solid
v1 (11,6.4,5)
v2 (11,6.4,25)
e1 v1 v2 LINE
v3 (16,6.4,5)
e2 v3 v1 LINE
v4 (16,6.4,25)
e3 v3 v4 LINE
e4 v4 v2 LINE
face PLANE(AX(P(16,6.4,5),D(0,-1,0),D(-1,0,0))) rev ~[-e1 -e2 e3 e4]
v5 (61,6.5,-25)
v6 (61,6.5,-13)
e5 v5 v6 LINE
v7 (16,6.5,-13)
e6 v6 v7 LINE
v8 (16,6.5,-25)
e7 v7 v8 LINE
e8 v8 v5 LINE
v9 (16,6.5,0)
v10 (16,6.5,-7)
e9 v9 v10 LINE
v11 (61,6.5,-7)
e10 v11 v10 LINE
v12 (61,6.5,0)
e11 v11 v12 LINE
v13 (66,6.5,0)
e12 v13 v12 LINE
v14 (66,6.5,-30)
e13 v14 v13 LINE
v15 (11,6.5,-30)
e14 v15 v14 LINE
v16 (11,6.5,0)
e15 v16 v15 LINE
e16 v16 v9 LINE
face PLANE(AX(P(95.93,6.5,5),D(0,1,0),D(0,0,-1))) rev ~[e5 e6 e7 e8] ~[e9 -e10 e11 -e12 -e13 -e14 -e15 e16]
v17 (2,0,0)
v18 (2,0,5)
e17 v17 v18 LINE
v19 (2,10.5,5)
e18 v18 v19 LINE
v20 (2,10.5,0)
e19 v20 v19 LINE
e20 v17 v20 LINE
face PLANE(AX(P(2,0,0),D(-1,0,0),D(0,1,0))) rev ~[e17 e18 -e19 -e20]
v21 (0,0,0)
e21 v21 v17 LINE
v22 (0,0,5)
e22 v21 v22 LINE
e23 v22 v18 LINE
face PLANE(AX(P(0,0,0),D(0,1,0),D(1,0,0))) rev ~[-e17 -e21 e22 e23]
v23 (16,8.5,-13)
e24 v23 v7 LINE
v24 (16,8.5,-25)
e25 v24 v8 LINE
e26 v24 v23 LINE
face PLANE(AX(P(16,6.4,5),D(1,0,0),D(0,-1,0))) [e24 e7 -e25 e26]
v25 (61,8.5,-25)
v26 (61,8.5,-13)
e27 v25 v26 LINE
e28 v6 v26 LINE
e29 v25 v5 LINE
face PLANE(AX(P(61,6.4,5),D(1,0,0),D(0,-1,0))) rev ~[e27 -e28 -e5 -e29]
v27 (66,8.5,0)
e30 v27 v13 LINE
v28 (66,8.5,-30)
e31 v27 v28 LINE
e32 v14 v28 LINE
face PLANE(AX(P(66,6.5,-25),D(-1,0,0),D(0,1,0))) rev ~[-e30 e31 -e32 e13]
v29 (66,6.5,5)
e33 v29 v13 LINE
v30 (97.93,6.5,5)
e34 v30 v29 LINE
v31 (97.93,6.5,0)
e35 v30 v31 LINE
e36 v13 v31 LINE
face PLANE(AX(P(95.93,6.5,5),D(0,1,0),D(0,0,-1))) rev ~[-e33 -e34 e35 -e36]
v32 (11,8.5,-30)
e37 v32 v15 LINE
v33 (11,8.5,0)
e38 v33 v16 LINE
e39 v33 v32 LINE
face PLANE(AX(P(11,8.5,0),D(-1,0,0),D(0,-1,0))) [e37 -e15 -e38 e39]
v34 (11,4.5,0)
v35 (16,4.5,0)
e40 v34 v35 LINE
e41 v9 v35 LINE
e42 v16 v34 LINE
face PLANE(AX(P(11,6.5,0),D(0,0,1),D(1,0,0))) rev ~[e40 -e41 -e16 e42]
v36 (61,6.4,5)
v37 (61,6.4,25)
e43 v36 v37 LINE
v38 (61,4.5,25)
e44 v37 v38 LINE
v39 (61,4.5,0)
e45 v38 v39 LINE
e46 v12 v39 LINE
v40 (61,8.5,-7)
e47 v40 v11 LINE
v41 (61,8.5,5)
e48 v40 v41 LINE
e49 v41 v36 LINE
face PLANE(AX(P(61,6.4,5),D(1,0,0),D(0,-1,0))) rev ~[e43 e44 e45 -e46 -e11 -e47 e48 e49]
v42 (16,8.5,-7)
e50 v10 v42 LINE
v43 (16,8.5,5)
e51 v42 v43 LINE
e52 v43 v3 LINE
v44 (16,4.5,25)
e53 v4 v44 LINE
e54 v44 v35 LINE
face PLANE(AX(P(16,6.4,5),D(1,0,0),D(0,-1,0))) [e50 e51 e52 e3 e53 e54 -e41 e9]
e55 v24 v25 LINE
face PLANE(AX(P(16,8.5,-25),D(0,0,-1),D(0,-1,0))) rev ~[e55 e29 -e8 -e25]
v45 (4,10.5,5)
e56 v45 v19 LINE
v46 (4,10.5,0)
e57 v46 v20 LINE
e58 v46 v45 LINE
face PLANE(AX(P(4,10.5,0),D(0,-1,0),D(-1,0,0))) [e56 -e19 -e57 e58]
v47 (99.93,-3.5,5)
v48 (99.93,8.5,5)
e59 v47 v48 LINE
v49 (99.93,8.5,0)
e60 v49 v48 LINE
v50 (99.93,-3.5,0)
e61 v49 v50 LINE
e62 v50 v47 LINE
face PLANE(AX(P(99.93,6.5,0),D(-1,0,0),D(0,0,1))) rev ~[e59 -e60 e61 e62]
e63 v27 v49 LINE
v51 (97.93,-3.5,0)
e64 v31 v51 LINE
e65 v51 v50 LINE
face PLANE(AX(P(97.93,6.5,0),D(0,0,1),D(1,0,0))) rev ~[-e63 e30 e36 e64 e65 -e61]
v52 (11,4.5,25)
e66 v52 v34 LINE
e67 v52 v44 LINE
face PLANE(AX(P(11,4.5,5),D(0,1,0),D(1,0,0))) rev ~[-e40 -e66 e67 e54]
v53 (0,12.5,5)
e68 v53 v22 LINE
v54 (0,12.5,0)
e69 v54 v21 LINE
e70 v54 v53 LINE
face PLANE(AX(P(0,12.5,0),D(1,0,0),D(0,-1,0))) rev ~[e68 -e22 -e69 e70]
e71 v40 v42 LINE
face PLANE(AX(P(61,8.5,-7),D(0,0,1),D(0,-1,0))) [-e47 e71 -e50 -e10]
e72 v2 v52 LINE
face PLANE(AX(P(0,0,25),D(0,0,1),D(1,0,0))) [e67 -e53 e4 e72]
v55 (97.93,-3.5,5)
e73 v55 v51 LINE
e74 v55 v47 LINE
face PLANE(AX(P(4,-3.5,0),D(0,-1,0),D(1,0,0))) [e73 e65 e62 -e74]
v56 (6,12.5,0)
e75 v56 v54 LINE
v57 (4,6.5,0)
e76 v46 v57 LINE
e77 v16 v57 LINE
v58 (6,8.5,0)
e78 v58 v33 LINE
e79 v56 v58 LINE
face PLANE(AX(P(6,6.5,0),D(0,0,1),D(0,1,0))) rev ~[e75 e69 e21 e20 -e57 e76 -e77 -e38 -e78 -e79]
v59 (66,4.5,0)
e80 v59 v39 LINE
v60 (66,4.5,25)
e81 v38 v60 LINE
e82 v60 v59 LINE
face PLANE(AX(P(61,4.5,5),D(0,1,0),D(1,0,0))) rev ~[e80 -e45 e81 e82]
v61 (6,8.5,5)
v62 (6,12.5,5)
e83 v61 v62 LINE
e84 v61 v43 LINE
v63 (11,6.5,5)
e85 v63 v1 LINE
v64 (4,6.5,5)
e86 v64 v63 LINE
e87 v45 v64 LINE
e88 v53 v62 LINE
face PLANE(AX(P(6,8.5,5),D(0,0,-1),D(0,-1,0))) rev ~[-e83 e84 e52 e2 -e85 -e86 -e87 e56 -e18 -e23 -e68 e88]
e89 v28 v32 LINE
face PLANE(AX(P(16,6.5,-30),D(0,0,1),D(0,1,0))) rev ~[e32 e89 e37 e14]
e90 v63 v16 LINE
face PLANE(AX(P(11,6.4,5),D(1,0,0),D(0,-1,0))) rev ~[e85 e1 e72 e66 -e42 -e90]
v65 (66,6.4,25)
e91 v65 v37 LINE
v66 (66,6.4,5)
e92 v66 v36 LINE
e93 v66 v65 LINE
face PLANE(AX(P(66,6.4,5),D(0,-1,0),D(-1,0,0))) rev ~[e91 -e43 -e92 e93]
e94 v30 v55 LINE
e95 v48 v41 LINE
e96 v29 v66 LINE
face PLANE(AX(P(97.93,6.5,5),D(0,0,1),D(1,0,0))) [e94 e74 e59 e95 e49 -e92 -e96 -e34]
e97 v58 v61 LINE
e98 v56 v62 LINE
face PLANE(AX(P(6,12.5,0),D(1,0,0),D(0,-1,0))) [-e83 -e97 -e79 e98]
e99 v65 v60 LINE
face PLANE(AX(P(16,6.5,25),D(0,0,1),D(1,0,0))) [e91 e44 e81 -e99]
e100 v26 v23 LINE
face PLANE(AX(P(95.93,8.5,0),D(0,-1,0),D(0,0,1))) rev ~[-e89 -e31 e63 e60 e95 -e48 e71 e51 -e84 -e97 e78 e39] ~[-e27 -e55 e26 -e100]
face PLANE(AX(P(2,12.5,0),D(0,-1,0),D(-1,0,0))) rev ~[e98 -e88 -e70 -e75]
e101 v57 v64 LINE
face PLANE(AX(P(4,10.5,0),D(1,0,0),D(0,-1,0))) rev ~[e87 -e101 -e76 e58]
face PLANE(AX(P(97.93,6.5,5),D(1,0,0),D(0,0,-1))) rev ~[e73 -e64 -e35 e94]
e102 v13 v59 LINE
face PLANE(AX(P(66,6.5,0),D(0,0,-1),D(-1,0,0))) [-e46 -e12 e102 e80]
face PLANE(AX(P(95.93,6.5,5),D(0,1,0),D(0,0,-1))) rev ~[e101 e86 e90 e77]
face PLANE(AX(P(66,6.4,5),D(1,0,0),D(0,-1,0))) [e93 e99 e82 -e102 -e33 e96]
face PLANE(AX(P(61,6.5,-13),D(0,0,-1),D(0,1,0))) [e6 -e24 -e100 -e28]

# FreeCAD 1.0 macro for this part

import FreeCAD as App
import Part
import Sketcher

V = App.Vector
Q = App.Units.Quantity


def add_polygon(sketch, points):
    """Adds a closed chain of lines whose ends are joined by coincident constraints."""
    first, n = sketch.GeometryCount, len(points)
    for a, b in zip(points, points[1:] + points[:1]):
        sketch.addGeometry(Part.LineSegment(App.Vector(*a, 0), App.Vector(*b, 0)), False)
    for i in range(n):
        sketch.addConstraint(Sketcher.Constraint("Coincident", first + i, 2, first + (i + 1) % n, 1))

doc = App.newDocument("Part")
params = doc.addObject("Spreadsheet::Sheet", "Params")
for row, (alias, value) in enumerate([
    ("sketch1_width", "2 mm"),
    ("sketch1_height", "4 mm"),
    ("sketch1_height2", "12.5 mm"),
    ("pad1_length", "5 mm"),
    ("sketch2_width", "2 mm"),
    ("sketch2_height", "5 mm"),
    ("pad2_length", "10 mm"),
    ("sketch3_width", "5 mm"),
    ("sketch3_height", "2 mm"),
    ("pad3_length", "30 mm"),
    ("sketch4_height", "5 mm"),
    ("sketch4_width", "2 mm"),
    ("pad4_length", "50 mm"),
    ("sketch5_width", "5 mm"),
    ("sketch5_height", "2 mm"),
    ("pad5_length", "30 mm"),
    ("sketch6_width", "2 mm"),
    ("sketch6_height", "5 mm"),
    ("pad6_length", "29.93 mm"),
    ("sketch7_width", "2 mm"),
    ("sketch7_height", "5 mm"),
    ("pad7_length", "4 mm"),
    ("sketch8_width", "2 mm"),
    ("sketch8_height", "5 mm"),
    ("pad8_length", "10 mm"),
    ("sketch9_width", "5 mm"),
    ("pad9_length", "2 mm"),
    ("sketch10_height", "1.9 mm"),
    ("sketch10_width", "5 mm"),
    ("pad10_length", "20 mm"),
    ("sketch11_height", "1.9 mm"),
    ("sketch11_width", "5 mm"),
    ("pad11_length", "20 mm"),
    ("sketch12_height", "6 mm"),
    ("sketch12_width", "2 mm"),
], start=1):
    params.set(f"A{row}", alias)
    params.set(f"B{row}", "=" + value)
    params.setAlias(f"B{row}", alias)

body = doc.addObject("PartDesign::Body", "Body")

sketch1 = body.newObject("Sketcher::SketchObject", "Sketch")
sketch1.AttachmentSupport = (doc.getObject("XY_Plane"), [""])
sketch1.MapMode = "FlatFace"
add_polygon(sketch1, [(0, 12.5), (0, 0), (2, 0), (2, 10.5), (4, 10.5), (4, 6.5), (6, 6.5), (6, 12.5)])
sketch1.addConstraint(Sketcher.Constraint("Vertical", 0))
sketch1.addConstraint(Sketcher.Constraint("Horizontal", 1))
sketch1.addConstraint(Sketcher.Constraint("Vertical", 2))
sketch1.addConstraint(Sketcher.Constraint("Horizontal", 3))
sketch1.addConstraint(Sketcher.Constraint("Vertical", 4))
sketch1.addConstraint(Sketcher.Constraint("Horizontal", 5))
sketch1.addConstraint(Sketcher.Constraint("Vertical", 6))
sketch1.addConstraint(Sketcher.Constraint("Horizontal", 7))
sketch1.addConstraint(Sketcher.Constraint("Coincident", 0, 2, -1, 1))
sketch1.addConstraint(Sketcher.Constraint("Equal", 1, 3))
sketch1.addConstraint(Sketcher.Constraint("Equal", 3, 5))
sketch1.addConstraint(Sketcher.Constraint("Equal", 7, 6))
sketch1.addConstraint(Sketcher.Constraint("DistanceX", 1, 1, 1, 2, Q("2 mm")))
sketch1.addConstraint(Sketcher.Constraint("DistanceY", 4, 2, 4, 1, Q("4 mm")))
sketch1.addConstraint(Sketcher.Constraint("DistanceY", 0, 2, 0, 1, Q("12.5 mm")))
sketch1.setExpression("Constraints[20]", "Params.sketch1_width")
sketch1.setExpression("Constraints[21]", "Params.sketch1_height")
sketch1.setExpression("Constraints[22]", "Params.sketch1_height2")
pad1 = body.newObject("PartDesign::Pad", "Pad")
pad1.Profile = sketch1
pad1.setExpression("Length", "Params.pad1_length")

sketch2 = body.newObject("Sketcher::SketchObject", "Sketch001")
sketch2.AttachmentSupport = (doc.getObject("YZ_Plane"), [""])
sketch2.MapMode = "FlatFace"
sketch2.AttachmentOffset = App.Placement(V(0, 0, 6), App.Rotation())
add_polygon(sketch2, [(8.5, 0), (8.5, 5), (6.5, 5), (6.5, 0)])
sketch2.addConstraint(Sketcher.Constraint("Vertical", 0))
sketch2.addConstraint(Sketcher.Constraint("Horizontal", 1))
sketch2.addConstraint(Sketcher.Constraint("Vertical", 2))
sketch2.addConstraint(Sketcher.Constraint("Horizontal", 3))
sketch2.addConstraint(Sketcher.Constraint("PointOnObject", 2, 2, -1))
sketch2.addConstraint(Sketcher.Constraint("DistanceX", 1, 2, 1, 1, Q("2 mm")))
sketch2.addConstraint(Sketcher.Constraint("DistanceY", 0, 1, 0, 2, Q("5 mm")))
sketch2.addConstraint(Sketcher.Constraint("DistanceX", -1, 1, 0, 2, Q("8.5 mm")))
sketch2.setExpression("Constraints[9]", "Params.sketch2_width")
sketch2.setExpression("Constraints[10]", "Params.sketch2_height")
pad2 = body.newObject("PartDesign::Pad", "Pad001")
pad2.Profile = sketch2
pad2.setExpression("Length", "Params.pad2_length")

sketch3 = body.newObject("Sketcher::SketchObject", "Sketch002")
sketch3.AttachmentSupport = (doc.getObject("XY_Plane"), [""])
sketch3.MapMode = "FlatFace"
add_polygon(sketch3, [(16, 8.5), (16, 6.5), (11, 6.5), (11, 8.5)])
sketch3.addConstraint(Sketcher.Constraint("Vertical", 0))
sketch3.addConstraint(Sketcher.Constraint("Horizontal", 1))
sketch3.addConstraint(Sketcher.Constraint("Vertical", 2))
sketch3.addConstraint(Sketcher.Constraint("Horizontal", 3))
sketch3.addConstraint(Sketcher.Constraint("DistanceX", 1, 2, 1, 1, Q("5 mm")))
sketch3.addConstraint(Sketcher.Constraint("DistanceY", 0, 2, 0, 1, Q("2 mm")))
sketch3.addConstraint(Sketcher.Constraint("DistanceX", -1, 1, 0, 2, Q("16 mm")))
sketch3.addConstraint(Sketcher.Constraint("DistanceY", -1, 1, 0, 2, Q("6.5 mm")))
sketch3.setExpression("Constraints[8]", "Params.sketch3_width")
sketch3.setExpression("Constraints[9]", "Params.sketch3_height")
pad3 = body.newObject("PartDesign::Pad", "Pad002")
pad3.Profile = sketch3
pad3.setExpression("Length", "Params.pad3_length")
pad3.Reversed = True

sketch4 = body.newObject("Sketcher::SketchObject", "Sketch003")
sketch4.AttachmentSupport = (doc.getObject("YZ_Plane"), [""])
sketch4.MapMode = "FlatFace"
sketch4.AttachmentOffset = App.Placement(V(0, 0, 16), App.Rotation())
add_polygon(sketch4, [(8.5, -25), (6.5, -25), (6.5, -30), (8.5, -30)])
sketch4.addConstraint(Sketcher.Constraint("Horizontal", 0))
sketch4.addConstraint(Sketcher.Constraint("Vertical", 1))
sketch4.addConstraint(Sketcher.Constraint("Horizontal", 2))
sketch4.addConstraint(Sketcher.Constraint("Vertical", 3))
sketch4.addConstraint(Sketcher.Constraint("DistanceY", 1, 2, 1, 1, Q("5 mm")))
sketch4.addConstraint(Sketcher.Constraint("DistanceX", 0, 2, 0, 1, Q("2 mm")))
sketch4.addConstraint(Sketcher.Constraint("DistanceY", 0, 2, -1, 1, Q("25 mm")))
sketch4.addConstraint(Sketcher.Constraint("DistanceX", -1, 1, 0, 2, Q("6.5 mm")))
sketch4.setExpression("Constraints[8]", "Params.sketch4_height")
sketch4.setExpression("Constraints[9]", "Params.sketch4_width")
pad4 = body.newObject("PartDesign::Pad", "Pad003")
pad4.Profile = sketch4
pad4.setExpression("Length", "Params.pad4_length")

sketch5 = body.newObject("Sketcher::SketchObject", "Sketch004")
sketch5.AttachmentSupport = (doc.getObject("XY_Plane"), [""])
sketch5.MapMode = "FlatFace"
sketch5.AttachmentOffset = App.Placement(V(0, 0, -25), App.Rotation())
add_polygon(sketch5, [(61, 8.5), (61, 6.5), (66, 6.5), (66, 8.5)])
sketch5.addConstraint(Sketcher.Constraint("Vertical", 0))
sketch5.addConstraint(Sketcher.Constraint("Horizontal", 1))
sketch5.addConstraint(Sketcher.Constraint("Vertical", 2))
sketch5.addConstraint(Sketcher.Constraint("Horizontal", 3))
sketch5.addConstraint(Sketcher.Constraint("DistanceX", 1, 1, 1, 2, Q("5 mm")))
sketch5.addConstraint(Sketcher.Constraint("DistanceY", 0, 2, 0, 1, Q("2 mm")))
sketch5.addConstraint(Sketcher.Constraint("DistanceX", -1, 1, 0, 2, Q("61 mm")))
sketch5.addConstraint(Sketcher.Constraint("DistanceY", -1, 1, 0, 2, Q("6.5 mm")))
sketch5.setExpression("Constraints[8]", "Params.sketch5_width")
sketch5.setExpression("Constraints[9]", "Params.sketch5_height")
pad5 = body.newObject("PartDesign::Pad", "Pad004")
pad5.Profile = sketch5
pad5.setExpression("Length", "Params.pad5_length")

sketch6 = body.newObject("Sketcher::SketchObject", "Sketch005")
sketch6.AttachmentSupport = (doc.getObject("YZ_Plane"), [""])
sketch6.MapMode = "FlatFace"
sketch6.AttachmentOffset = App.Placement(V(0, 0, 66), App.Rotation())
add_polygon(sketch6, [(6.5, 5), (6.5, 0), (8.5, 0), (8.5, 5)])
sketch6.addConstraint(Sketcher.Constraint("Vertical", 0))
sketch6.addConstraint(Sketcher.Constraint("Horizontal", 1))
sketch6.addConstraint(Sketcher.Constraint("Vertical", 2))
sketch6.addConstraint(Sketcher.Constraint("Horizontal", 3))
sketch6.addConstraint(Sketcher.Constraint("PointOnObject", 0, 2, -1))
sketch6.addConstraint(Sketcher.Constraint("DistanceX", 1, 1, 1, 2, Q("2 mm")))
sketch6.addConstraint(Sketcher.Constraint("DistanceY", 0, 2, 0, 1, Q("5 mm")))
sketch6.addConstraint(Sketcher.Constraint("DistanceX", -1, 1, 0, 2, Q("6.5 mm")))
sketch6.setExpression("Constraints[9]", "Params.sketch6_width")
sketch6.setExpression("Constraints[10]", "Params.sketch6_height")
pad6 = body.newObject("PartDesign::Pad", "Pad005")
pad6.Profile = sketch6
pad6.setExpression("Length", "Params.pad6_length")

sketch7 = body.newObject("Sketcher::SketchObject", "Sketch006")
sketch7.AttachmentSupport = (doc.getObject("YZ_Plane"), [""])
sketch7.MapMode = "FlatFace"
sketch7.AttachmentOffset = App.Placement(V(0, 0, 95.93), App.Rotation())
add_polygon(sketch7, [(6.5, 5), (6.5, 0), (8.5, 0), (8.5, 5)])
sketch7.addConstraint(Sketcher.Constraint("Vertical", 0))
sketch7.addConstraint(Sketcher.Constraint("Horizontal", 1))
sketch7.addConstraint(Sketcher.Constraint("Vertical", 2))
sketch7.addConstraint(Sketcher.Constraint("Horizontal", 3))
sketch7.addConstraint(Sketcher.Constraint("PointOnObject", 0, 2, -1))
sketch7.addConstraint(Sketcher.Constraint("DistanceX", 1, 1, 1, 2, Q("2 mm")))
sketch7.addConstraint(Sketcher.Constraint("DistanceY", 0, 2, 0, 1, Q("5 mm")))
sketch7.addConstraint(Sketcher.Constraint("DistanceX", -1, 1, 0, 2, Q("6.5 mm")))
sketch7.setExpression("Constraints[9]", "Params.sketch7_width")
sketch7.setExpression("Constraints[10]", "Params.sketch7_height")
pad7 = body.newObject("PartDesign::Pad", "Pad006")
pad7.Profile = sketch7
pad7.setExpression("Length", "Params.pad7_length")

sketch8 = body.newObject("Sketcher::SketchObject", "Sketch007")
sketch8.AttachmentSupport = (doc.getObject("XZ_Plane"), [""])
sketch8.MapMode = "FlatFace"
sketch8.AttachmentOffset = App.Placement(V(0, 0, -6.5), App.Rotation())
add_polygon(sketch8, [(97.9, 5), (97.9, 0), (99.9, 0), (99.9, 5)])
sketch8.addConstraint(Sketcher.Constraint("Vertical", 0))
sketch8.addConstraint(Sketcher.Constraint("Horizontal", 1))
sketch8.addConstraint(Sketcher.Constraint("Vertical", 2))
sketch8.addConstraint(Sketcher.Constraint("Horizontal", 3))
sketch8.addConstraint(Sketcher.Constraint("PointOnObject", 0, 2, -1))
sketch8.addConstraint(Sketcher.Constraint("DistanceX", 1, 1, 1, 2, Q("2 mm")))
sketch8.addConstraint(Sketcher.Constraint("DistanceY", 0, 2, 0, 1, Q("5 mm")))
sketch8.addConstraint(Sketcher.Constraint("DistanceX", -1, 1, 0, 2, Q("97.93 mm")))
sketch8.setExpression("Constraints[9]", "Params.sketch8_width")
sketch8.setExpression("Constraints[10]", "Params.sketch8_height")
pad8 = body.newObject("PartDesign::Pad", "Pad007")
pad8.Profile = sketch8
pad8.setExpression("Length", "Params.pad8_length")

sketch9 = body.newObject("Sketcher::SketchObject", "Sketch008")
sketch9.AttachmentSupport = (doc.getObject("XZ_Plane"), [""])
sketch9.MapMode = "FlatFace"
sketch9.AttachmentOffset = App.Placement(V(0, 0, -6.5), App.Rotation())
add_polygon(sketch9, [(66, 5), (61, 5), (61, 0), (66, 0)])
add_polygon(sketch9, [(16, 0), (16, 5), (11, 5), (11, 0)])
sketch9.addConstraint(Sketcher.Constraint("Horizontal", 0))
sketch9.addConstraint(Sketcher.Constraint("Vertical", 1))
sketch9.addConstraint(Sketcher.Constraint("Horizontal", 2))
sketch9.addConstraint(Sketcher.Constraint("Vertical", 3))
sketch9.addConstraint(Sketcher.Constraint("Vertical", 4))
sketch9.addConstraint(Sketcher.Constraint("Horizontal", 5))
sketch9.addConstraint(Sketcher.Constraint("Vertical", 6))
sketch9.addConstraint(Sketcher.Constraint("Horizontal", 7))
sketch9.addConstraint(Sketcher.Constraint("PointOnObject", 1, 2, -1))
sketch9.addConstraint(Sketcher.Constraint("PointOnObject", 6, 2, -1))
sketch9.addConstraint(Sketcher.Constraint("Horizontal", 3, 2, 4, 2))
sketch9.addConstraint(Sketcher.Constraint("Equal", 2, 5))
sketch9.addConstraint(Sketcher.Constraint("Equal", 7, 1))
sketch9.addConstraint(Sketcher.Constraint("DistanceX", 0, 2, 0, 1, Q("5 mm")))
sketch9.addConstraint(Sketcher.Constraint("DistanceX", -1, 1, 0, 2, Q("61 mm")))
sketch9.addConstraint(Sketcher.Constraint("DistanceX", -1, 1, 4, 2, Q("16 mm")))
sketch9.setExpression("Constraints[21]", "Params.sketch9_width")
pad9 = body.newObject("PartDesign::Pad", "Pad008")
pad9.Profile = sketch9
pad9.setExpression("Length", "Params.pad9_length")

sketch10 = body.newObject("Sketcher::SketchObject", "Sketch009")
sketch10.AttachmentSupport = (doc.getObject("XY_Plane"), [""])
sketch10.MapMode = "FlatFace"
sketch10.AttachmentOffset = App.Placement(V(0, 0, 5), App.Rotation())
add_polygon(sketch10, [(16, 4.5), (16, 6.4), (11, 6.4), (11, 4.5)])
sketch10.addConstraint(Sketcher.Constraint("Vertical", 0))
sketch10.addConstraint(Sketcher.Constraint("Horizontal", 1))
sketch10.addConstraint(Sketcher.Constraint("Vertical", 2))
sketch10.addConstraint(Sketcher.Constraint("Horizontal", 3))
sketch10.addConstraint(Sketcher.Constraint("DistanceY", 0, 1, 0, 2, Q("1.9 mm")))
sketch10.addConstraint(Sketcher.Constraint("DistanceX", 1, 2, 1, 1, Q("5 mm")))
sketch10.addConstraint(Sketcher.Constraint("DistanceX", -1, 1, 0, 2, Q("16 mm")))
sketch10.addConstraint(Sketcher.Constraint("DistanceY", -1, 1, 0, 2, Q("6.4 mm")))
sketch10.setExpression("Constraints[8]", "Params.sketch10_height")
sketch10.setExpression("Constraints[9]", "Params.sketch10_width")
pad10 = body.newObject("PartDesign::Pad", "Pad009")
pad10.Profile = sketch10
pad10.setExpression("Length", "Params.pad10_length")

sketch11 = body.newObject("Sketcher::SketchObject", "Sketch010")
sketch11.AttachmentSupport = (doc.getObject("XY_Plane"), [""])
sketch11.MapMode = "FlatFace"
sketch11.AttachmentOffset = App.Placement(V(0, 0, 5), App.Rotation())
add_polygon(sketch11, [(66, 4.5), (66, 6.4), (61, 6.4), (61, 4.5)])
sketch11.addConstraint(Sketcher.Constraint("Vertical", 0))
sketch11.addConstraint(Sketcher.Constraint("Horizontal", 1))
sketch11.addConstraint(Sketcher.Constraint("Vertical", 2))
sketch11.addConstraint(Sketcher.Constraint("Horizontal", 3))
sketch11.addConstraint(Sketcher.Constraint("DistanceY", 0, 1, 0, 2, Q("1.9 mm")))
sketch11.addConstraint(Sketcher.Constraint("DistanceX", 1, 2, 1, 1, Q("5 mm")))
sketch11.addConstraint(Sketcher.Constraint("DistanceX", -1, 1, 0, 2, Q("66 mm")))
sketch11.addConstraint(Sketcher.Constraint("DistanceY", -1, 1, 0, 2, Q("6.4 mm")))
sketch11.setExpression("Constraints[8]", "Params.sketch11_height")
sketch11.setExpression("Constraints[9]", "Params.sketch11_width")
pad11 = body.newObject("PartDesign::Pad", "Pad010")
pad11.Profile = sketch11
pad11.setExpression("Length", "Params.pad11_length")

sketch12 = body.newObject("Sketcher::SketchObject", "Sketch011")
sketch12.AttachmentSupport = (doc.getObject("YZ_Plane"), [""])
sketch12.MapMode = "FlatFace"
sketch12.AttachmentOffset = App.Placement(V(0, 0, 61), App.Rotation())
add_polygon(sketch12, [(8.5, -13), (6.5, -13), (6.5, -7), (8.5, -7)])
sketch12.addConstraint(Sketcher.Constraint("Horizontal", 0))
sketch12.addConstraint(Sketcher.Constraint("Vertical", 1))
sketch12.addConstraint(Sketcher.Constraint("Horizontal", 2))
sketch12.addConstraint(Sketcher.Constraint("Vertical", 3))
sketch12.addConstraint(Sketcher.Constraint("DistanceY", 1, 1, 1, 2, Q("6 mm")))
sketch12.addConstraint(Sketcher.Constraint("DistanceX", 0, 2, 0, 1, Q("2 mm")))
sketch12.addConstraint(Sketcher.Constraint("DistanceY", 0, 2, -1, 1, Q("13 mm")))
sketch12.addConstraint(Sketcher.Constraint("DistanceX", -1, 1, 0, 2, Q("6.5 mm")))
sketch12.setExpression("Constraints[8]", "Params.sketch12_height")
sketch12.setExpression("Constraints[9]", "Params.sketch12_width")
pad12 = body.newObject("PartDesign::Pad", "Pad011")
pad12.Profile = sketch12
pad12.Type = "UpToFirst"
pad12.Reversed = True

doc.recompute()
